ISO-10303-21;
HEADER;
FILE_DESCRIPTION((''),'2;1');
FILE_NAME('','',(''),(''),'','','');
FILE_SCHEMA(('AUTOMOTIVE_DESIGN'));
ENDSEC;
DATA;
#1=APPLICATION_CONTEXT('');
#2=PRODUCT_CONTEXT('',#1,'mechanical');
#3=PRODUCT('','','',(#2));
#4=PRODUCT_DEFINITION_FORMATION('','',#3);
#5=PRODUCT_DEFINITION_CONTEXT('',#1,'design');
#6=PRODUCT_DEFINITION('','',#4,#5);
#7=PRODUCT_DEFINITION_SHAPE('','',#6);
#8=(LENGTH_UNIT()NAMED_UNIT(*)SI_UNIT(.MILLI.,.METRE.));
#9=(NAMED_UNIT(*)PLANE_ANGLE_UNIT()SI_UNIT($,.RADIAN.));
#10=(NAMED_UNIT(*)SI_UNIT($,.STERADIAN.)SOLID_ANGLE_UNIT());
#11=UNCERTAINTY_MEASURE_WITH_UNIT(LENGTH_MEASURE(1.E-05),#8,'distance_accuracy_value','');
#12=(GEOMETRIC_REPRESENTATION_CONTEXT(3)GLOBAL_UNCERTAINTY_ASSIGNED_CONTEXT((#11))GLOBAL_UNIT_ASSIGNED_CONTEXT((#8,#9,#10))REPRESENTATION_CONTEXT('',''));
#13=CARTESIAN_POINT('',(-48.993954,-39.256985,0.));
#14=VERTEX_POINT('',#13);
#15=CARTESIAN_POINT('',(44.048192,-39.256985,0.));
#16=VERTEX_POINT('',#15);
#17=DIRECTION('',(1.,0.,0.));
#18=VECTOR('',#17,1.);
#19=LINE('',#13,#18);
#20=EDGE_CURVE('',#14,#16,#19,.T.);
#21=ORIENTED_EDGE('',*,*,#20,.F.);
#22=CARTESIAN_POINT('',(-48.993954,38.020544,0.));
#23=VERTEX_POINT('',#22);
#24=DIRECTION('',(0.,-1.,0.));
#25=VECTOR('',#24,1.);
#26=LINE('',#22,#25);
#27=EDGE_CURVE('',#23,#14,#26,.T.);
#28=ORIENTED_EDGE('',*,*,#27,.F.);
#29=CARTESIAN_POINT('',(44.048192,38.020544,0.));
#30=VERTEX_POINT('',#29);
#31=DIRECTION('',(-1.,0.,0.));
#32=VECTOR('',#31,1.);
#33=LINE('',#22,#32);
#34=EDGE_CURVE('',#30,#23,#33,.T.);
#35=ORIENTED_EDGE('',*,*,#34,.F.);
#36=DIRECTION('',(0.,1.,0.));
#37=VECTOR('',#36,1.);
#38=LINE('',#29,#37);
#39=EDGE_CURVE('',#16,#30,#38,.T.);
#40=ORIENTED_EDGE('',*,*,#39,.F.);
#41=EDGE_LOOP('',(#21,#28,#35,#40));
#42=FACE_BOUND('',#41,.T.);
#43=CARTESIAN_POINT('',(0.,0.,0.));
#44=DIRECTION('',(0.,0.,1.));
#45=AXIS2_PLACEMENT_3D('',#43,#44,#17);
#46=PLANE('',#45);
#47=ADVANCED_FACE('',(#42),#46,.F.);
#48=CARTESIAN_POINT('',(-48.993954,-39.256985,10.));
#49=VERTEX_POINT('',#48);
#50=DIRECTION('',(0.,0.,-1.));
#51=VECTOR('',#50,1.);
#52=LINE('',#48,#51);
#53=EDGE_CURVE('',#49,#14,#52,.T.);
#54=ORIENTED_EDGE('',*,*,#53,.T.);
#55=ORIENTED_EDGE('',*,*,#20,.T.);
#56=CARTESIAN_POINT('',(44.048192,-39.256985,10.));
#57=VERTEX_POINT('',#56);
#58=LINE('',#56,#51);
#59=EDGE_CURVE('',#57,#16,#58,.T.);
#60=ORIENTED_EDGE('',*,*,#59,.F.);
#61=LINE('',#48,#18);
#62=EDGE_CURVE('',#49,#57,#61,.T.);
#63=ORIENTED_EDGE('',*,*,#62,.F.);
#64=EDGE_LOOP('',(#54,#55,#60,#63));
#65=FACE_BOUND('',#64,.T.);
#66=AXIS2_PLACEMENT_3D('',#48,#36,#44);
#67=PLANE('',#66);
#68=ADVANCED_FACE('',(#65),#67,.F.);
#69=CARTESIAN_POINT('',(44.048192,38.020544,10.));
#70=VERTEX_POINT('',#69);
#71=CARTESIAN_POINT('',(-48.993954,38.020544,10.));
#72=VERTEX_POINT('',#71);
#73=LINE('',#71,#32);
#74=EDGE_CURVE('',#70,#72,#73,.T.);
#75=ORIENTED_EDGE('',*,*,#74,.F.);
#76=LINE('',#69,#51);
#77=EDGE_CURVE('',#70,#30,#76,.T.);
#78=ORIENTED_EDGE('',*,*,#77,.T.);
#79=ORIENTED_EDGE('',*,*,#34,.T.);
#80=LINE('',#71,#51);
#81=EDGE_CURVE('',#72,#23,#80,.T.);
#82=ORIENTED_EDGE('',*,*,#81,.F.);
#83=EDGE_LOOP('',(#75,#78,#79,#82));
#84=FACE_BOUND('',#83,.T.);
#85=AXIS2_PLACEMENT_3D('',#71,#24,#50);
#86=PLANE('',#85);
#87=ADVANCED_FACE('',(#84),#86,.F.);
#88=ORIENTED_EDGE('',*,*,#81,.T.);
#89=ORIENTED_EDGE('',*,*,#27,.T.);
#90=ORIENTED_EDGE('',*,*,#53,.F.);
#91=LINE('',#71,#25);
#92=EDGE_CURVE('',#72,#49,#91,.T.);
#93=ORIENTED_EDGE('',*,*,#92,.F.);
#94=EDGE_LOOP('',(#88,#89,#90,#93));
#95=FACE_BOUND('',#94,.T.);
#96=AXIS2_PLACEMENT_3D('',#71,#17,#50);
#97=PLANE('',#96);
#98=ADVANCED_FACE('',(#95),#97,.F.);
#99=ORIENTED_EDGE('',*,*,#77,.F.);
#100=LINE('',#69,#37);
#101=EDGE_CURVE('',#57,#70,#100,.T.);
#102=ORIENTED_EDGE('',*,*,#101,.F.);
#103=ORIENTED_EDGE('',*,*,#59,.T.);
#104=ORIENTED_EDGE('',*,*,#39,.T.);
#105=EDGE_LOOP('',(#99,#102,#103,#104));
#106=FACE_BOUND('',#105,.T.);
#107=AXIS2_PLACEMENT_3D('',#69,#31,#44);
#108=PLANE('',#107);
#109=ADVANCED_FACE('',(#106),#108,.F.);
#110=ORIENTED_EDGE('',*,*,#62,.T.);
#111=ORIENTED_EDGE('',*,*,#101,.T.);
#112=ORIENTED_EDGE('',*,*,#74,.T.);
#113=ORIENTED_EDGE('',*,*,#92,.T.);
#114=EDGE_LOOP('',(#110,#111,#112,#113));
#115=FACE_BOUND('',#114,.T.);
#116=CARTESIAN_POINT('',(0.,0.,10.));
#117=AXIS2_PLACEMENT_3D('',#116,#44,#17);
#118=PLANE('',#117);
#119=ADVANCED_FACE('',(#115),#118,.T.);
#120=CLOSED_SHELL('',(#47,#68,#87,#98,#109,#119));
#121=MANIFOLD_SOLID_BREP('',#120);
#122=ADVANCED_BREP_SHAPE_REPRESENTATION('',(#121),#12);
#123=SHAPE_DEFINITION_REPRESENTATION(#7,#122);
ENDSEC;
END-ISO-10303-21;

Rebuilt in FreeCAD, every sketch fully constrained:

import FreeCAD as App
import Part
import Sketcher

doc = App.newDocument("Part")
body = doc.addObject("PartDesign::Body", "Body")

# Sketch on XY plane
sketch1 = doc.addObject("Sketcher::SketchObject", "Sketch")
body.addObject(sketch1)
sketch1.AttachmentSupport = (doc.XY_Plane, [""])
sketch1.MapMode = "FlatFace"
sketch1.addGeometry([
    Part.LineSegment(App.Vector(-49, 38, 0), App.Vector(-49, -39, 0)),
    Part.LineSegment(App.Vector(-49, -39, 0), App.Vector(44, -39, 0)),
    Part.LineSegment(App.Vector(44, -39, 0), App.Vector(44, 38, 0)),
    Part.LineSegment(App.Vector(44, 38, 0), App.Vector(-49, 38, 0)),
], False)
sketch1.addConstraint([
    Sketcher.Constraint("Coincident", 0, 2, 1, 1),
    Sketcher.Constraint("Coincident", 1, 2, 2, 1),
    Sketcher.Constraint("Coincident", 2, 2, 3, 1),
    Sketcher.Constraint("Coincident", 3, 2, 0, 1),
    Sketcher.Constraint("Vertical", 0),
    Sketcher.Constraint("Horizontal", 1),
    Sketcher.Constraint("Vertical", 2),
    Sketcher.Constraint("Horizontal", 3),
    Sketcher.Constraint("DistanceY", 0, 2, 0, 1, 77.277529),
    Sketcher.Constraint("DistanceX", 1, 1, 1, 2, 93.042145),
    Sketcher.Constraint("DistanceX", -1, 1, 1, 2, 44.048192),
    Sketcher.Constraint("DistanceY", 0, 2, -1, 1, 39.256985),
])
pad1 = doc.addObject("PartDesign::Pad", "Pad")
body.addObject(pad1)
pad1.Profile = sketch1
pad1.Length = 10

doc.recompute()
